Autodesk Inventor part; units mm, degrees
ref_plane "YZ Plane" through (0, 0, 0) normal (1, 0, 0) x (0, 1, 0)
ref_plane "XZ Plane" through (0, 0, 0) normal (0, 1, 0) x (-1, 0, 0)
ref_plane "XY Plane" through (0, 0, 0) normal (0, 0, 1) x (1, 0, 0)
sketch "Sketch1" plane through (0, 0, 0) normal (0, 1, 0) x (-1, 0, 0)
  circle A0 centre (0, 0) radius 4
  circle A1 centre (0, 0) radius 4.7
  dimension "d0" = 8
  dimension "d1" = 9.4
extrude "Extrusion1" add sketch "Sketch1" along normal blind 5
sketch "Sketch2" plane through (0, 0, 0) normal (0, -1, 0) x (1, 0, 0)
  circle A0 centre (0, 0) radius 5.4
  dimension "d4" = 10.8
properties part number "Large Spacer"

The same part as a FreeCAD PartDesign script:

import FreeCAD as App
import Part
import Sketcher
Q = App.Units.Quantity

doc = App.newDocument("Part")
params = doc.addObject("Spreadsheet::Sheet", "Params")
for row, (alias, value) in enumerate([
    ("sketch1_diameter", "8 mm"),
    ("sketch1_diameter2", "9.4 mm"),
    ("pad1_length", "5 mm"),
], start=1):
    params.set(f"A{row}", alias)
    params.set(f"B{row}", "=" + value)
    params.setAlias(f"B{row}", alias)

body = doc.addObject("PartDesign::Body", "Body")

# Sketch on XZ plane
sketch1 = body.newObject("Sketcher::SketchObject", "Sketch")
sketch1.AttachmentSupport = (doc.getObject("XZ_Plane"), [""])
sketch1.MapMode = "FlatFace"
sketch1.addGeometry(Part.Circle(App.Vector(0, 0, 0), App.Vector(0, 0, 1), 4.7), False)
sketch1.addGeometry(Part.Circle(App.Vector(0, 0, 0), App.Vector(0, 0, 1), 4), False)
sketch1.addConstraint(Sketcher.Constraint("Coincident", 0, 3, -1, 1))
sketch1.addConstraint(Sketcher.Constraint("Coincident", 1, 3, -1, 1))
sketch1.addConstraint(Sketcher.Constraint("Diameter", 1, Q("8 mm")))
sketch1.addConstraint(Sketcher.Constraint("Diameter", 0, Q("9.4 mm")))
sketch1.setExpression("Constraints[2]", "Params.sketch1_diameter")
sketch1.setExpression("Constraints[3]", "Params.sketch1_diameter2")
pad1 = body.newObject("PartDesign::Pad", "Pad")
pad1.Profile = sketch1
pad1.setExpression("Length", "Params.pad1_length")
pad1.Reversed = True

doc.recompute()
